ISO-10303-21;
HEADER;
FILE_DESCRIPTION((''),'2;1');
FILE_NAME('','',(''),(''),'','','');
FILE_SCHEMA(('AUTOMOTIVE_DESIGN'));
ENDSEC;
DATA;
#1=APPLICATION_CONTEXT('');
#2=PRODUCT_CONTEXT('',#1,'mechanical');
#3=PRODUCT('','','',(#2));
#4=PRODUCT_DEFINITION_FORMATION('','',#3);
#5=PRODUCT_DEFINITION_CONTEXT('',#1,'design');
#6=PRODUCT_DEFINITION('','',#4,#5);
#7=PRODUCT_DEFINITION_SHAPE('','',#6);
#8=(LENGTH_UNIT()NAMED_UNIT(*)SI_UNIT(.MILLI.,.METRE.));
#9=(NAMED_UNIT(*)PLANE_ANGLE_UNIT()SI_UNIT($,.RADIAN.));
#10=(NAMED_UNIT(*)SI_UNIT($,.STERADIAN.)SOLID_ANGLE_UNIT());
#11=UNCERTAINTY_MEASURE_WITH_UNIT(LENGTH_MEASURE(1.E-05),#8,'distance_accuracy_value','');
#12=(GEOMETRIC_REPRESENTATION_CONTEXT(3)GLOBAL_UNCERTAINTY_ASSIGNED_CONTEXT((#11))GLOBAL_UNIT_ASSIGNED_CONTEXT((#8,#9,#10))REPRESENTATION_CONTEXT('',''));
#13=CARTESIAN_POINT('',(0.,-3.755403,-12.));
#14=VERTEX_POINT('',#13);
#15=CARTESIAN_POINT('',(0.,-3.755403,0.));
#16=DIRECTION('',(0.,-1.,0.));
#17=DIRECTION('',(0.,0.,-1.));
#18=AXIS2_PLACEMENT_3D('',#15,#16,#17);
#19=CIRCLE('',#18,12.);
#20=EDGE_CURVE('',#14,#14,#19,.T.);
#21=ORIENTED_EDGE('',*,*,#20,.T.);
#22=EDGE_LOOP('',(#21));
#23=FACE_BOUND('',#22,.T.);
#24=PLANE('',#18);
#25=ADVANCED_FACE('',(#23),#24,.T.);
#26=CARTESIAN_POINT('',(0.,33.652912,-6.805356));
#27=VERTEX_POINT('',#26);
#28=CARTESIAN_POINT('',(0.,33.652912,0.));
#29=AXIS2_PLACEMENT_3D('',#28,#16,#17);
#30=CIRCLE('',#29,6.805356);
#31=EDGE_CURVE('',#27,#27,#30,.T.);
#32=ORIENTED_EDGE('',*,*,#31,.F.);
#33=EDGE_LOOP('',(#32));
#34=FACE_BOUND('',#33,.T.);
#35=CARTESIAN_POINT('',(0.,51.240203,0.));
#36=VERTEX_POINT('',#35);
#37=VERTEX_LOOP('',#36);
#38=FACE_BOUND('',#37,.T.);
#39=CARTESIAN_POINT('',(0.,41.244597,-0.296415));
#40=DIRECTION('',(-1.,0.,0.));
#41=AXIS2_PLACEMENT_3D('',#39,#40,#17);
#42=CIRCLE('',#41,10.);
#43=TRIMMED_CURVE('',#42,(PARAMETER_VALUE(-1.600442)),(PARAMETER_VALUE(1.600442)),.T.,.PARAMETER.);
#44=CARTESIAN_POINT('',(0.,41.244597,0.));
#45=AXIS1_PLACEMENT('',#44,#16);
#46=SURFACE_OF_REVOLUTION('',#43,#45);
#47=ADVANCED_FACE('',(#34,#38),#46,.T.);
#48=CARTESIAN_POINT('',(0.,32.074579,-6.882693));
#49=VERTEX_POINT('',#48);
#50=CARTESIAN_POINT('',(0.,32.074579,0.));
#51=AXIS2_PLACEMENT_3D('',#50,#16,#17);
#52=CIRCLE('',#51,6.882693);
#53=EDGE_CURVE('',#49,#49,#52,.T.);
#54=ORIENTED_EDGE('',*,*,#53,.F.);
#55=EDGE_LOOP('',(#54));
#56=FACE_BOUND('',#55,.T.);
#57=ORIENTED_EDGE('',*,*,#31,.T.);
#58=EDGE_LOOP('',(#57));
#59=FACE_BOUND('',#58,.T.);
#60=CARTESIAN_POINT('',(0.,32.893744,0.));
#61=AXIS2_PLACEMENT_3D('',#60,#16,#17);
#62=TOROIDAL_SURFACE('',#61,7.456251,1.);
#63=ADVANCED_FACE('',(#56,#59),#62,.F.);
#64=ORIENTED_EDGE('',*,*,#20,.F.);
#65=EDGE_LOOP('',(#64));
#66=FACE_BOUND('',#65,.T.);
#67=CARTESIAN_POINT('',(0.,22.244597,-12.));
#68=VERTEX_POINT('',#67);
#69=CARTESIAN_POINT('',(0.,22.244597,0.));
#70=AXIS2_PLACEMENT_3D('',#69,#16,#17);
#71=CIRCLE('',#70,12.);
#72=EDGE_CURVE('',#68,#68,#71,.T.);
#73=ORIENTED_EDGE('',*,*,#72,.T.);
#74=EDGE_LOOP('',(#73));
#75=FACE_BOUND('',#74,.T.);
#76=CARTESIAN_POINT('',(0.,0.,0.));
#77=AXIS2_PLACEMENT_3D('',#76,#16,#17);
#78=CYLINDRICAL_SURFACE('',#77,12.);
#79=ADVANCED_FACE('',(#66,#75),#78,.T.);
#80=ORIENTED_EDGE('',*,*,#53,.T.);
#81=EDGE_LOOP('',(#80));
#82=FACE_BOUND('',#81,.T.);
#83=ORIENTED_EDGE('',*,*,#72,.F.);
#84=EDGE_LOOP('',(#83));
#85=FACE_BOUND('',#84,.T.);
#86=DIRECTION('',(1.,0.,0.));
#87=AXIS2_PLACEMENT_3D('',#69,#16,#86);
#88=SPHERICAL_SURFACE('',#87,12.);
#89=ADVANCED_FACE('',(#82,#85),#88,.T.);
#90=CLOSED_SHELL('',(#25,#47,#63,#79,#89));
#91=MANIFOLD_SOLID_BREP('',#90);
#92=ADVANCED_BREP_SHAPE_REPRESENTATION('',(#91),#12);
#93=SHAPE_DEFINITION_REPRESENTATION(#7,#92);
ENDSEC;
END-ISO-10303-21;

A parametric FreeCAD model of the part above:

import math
import FreeCAD as App
import Part
import Sketcher
from FreeCAD import Vector
Q = App.Units.Quantity

doc = App.newDocument("Part")
body = doc.addObject("PartDesign::Body", "Body")

# Sketch on XY plane
sketch1 = doc.addObject("Sketcher::SketchObject", "Sketch")
body.addObject(sketch1)
sketch1.AttachmentSupport = (doc.XY_Plane, [""])
sketch1.MapMode = "FlatFace"
sketch1.addGeometry(Part.LineSegment(Vector(12, -3.8, 0), Vector(12, 22.2, 0)), False)
sketch1.addGeometry(Part.ArcOfCircle(Part.Circle(Vector(0, 22.2, 0), Vector(0, 0, 1), 12), math.radians(0), math.radians(55)), False)
sketch1.addGeometry(Part.ArcOfCircle(Part.Circle(Vector(7.5, 32.9, 0), Vector(0, 0, 1), 1), math.radians(131), math.radians(235)), False)
sketch1.addGeometry(Part.ArcOfCircle(Part.Circle(Vector(0.3, 41.2, 0), Vector(0, 0, 1), 10), math.radians(-49), math.radians(92)), False)
sketch1.addGeometry(Part.LineSegment(Vector(0, 51.2, 0), Vector(0, -3.8, 0)), False)
sketch1.addGeometry(Part.LineSegment(Vector(0, -3.8, 0), Vector(12, -3.8, 0)), False)
sketch1.addConstraint(Sketcher.Constraint("Tangent", 0, 2, 1, 1))
sketch1.addConstraint(Sketcher.Constraint("Tangent", 1, 2, 2, 2))
sketch1.addConstraint(Sketcher.Constraint("Tangent", 2, 1, 3, 1))
sketch1.addConstraint(Sketcher.Constraint("Coincident", 3, 2, 4, 1))
sketch1.addConstraint(Sketcher.Constraint("Coincident", 4, 2, 5, 1))
sketch1.addConstraint(Sketcher.Constraint("Coincident", 5, 2, 0, 1))
sketch1.addConstraint(Sketcher.Constraint("Vertical", 0))
sketch1.addConstraint(Sketcher.Constraint("Vertical", 4))
sketch1.addConstraint(Sketcher.Constraint("Horizontal", 5))
sketch1.addConstraint(Sketcher.Constraint("PointOnObject", 1, 3, -2))
sketch1.addConstraint(Sketcher.Constraint("PointOnObject", 3, 2, -2))
sketch1.addConstraint(Sketcher.Constraint("Radius", 1, Q("12 mm")))
sketch1.addConstraint(Sketcher.Constraint("Radius", 2, Q("1 mm")))
sketch1.addConstraint(Sketcher.Constraint("Radius", 3, Q("10 mm")))
sketch1.addConstraint(Sketcher.Constraint("DistanceY", 0, 1, 0, 2, Q("26 mm")))
sketch1.addConstraint(Sketcher.Constraint("DistanceY", 1, 3, 3, 3, Q("19 mm")))
sketch1.addConstraint(Sketcher.Constraint("DistanceY", 4, 2, 4, 1, Q("54.995606 mm")))
sketch1.addConstraint(Sketcher.Constraint("DistanceY", -1, 1, 1, 2, Q("32.074579 mm")))
revolution = doc.addObject("PartDesign::Revolution", "Revolution")
body.addObject(revolution)
revolution.Profile = sketch1
revolution.ReferenceAxis = (sketch1, ["V_Axis"])
revolution.Angle = 360

doc.recompute()
